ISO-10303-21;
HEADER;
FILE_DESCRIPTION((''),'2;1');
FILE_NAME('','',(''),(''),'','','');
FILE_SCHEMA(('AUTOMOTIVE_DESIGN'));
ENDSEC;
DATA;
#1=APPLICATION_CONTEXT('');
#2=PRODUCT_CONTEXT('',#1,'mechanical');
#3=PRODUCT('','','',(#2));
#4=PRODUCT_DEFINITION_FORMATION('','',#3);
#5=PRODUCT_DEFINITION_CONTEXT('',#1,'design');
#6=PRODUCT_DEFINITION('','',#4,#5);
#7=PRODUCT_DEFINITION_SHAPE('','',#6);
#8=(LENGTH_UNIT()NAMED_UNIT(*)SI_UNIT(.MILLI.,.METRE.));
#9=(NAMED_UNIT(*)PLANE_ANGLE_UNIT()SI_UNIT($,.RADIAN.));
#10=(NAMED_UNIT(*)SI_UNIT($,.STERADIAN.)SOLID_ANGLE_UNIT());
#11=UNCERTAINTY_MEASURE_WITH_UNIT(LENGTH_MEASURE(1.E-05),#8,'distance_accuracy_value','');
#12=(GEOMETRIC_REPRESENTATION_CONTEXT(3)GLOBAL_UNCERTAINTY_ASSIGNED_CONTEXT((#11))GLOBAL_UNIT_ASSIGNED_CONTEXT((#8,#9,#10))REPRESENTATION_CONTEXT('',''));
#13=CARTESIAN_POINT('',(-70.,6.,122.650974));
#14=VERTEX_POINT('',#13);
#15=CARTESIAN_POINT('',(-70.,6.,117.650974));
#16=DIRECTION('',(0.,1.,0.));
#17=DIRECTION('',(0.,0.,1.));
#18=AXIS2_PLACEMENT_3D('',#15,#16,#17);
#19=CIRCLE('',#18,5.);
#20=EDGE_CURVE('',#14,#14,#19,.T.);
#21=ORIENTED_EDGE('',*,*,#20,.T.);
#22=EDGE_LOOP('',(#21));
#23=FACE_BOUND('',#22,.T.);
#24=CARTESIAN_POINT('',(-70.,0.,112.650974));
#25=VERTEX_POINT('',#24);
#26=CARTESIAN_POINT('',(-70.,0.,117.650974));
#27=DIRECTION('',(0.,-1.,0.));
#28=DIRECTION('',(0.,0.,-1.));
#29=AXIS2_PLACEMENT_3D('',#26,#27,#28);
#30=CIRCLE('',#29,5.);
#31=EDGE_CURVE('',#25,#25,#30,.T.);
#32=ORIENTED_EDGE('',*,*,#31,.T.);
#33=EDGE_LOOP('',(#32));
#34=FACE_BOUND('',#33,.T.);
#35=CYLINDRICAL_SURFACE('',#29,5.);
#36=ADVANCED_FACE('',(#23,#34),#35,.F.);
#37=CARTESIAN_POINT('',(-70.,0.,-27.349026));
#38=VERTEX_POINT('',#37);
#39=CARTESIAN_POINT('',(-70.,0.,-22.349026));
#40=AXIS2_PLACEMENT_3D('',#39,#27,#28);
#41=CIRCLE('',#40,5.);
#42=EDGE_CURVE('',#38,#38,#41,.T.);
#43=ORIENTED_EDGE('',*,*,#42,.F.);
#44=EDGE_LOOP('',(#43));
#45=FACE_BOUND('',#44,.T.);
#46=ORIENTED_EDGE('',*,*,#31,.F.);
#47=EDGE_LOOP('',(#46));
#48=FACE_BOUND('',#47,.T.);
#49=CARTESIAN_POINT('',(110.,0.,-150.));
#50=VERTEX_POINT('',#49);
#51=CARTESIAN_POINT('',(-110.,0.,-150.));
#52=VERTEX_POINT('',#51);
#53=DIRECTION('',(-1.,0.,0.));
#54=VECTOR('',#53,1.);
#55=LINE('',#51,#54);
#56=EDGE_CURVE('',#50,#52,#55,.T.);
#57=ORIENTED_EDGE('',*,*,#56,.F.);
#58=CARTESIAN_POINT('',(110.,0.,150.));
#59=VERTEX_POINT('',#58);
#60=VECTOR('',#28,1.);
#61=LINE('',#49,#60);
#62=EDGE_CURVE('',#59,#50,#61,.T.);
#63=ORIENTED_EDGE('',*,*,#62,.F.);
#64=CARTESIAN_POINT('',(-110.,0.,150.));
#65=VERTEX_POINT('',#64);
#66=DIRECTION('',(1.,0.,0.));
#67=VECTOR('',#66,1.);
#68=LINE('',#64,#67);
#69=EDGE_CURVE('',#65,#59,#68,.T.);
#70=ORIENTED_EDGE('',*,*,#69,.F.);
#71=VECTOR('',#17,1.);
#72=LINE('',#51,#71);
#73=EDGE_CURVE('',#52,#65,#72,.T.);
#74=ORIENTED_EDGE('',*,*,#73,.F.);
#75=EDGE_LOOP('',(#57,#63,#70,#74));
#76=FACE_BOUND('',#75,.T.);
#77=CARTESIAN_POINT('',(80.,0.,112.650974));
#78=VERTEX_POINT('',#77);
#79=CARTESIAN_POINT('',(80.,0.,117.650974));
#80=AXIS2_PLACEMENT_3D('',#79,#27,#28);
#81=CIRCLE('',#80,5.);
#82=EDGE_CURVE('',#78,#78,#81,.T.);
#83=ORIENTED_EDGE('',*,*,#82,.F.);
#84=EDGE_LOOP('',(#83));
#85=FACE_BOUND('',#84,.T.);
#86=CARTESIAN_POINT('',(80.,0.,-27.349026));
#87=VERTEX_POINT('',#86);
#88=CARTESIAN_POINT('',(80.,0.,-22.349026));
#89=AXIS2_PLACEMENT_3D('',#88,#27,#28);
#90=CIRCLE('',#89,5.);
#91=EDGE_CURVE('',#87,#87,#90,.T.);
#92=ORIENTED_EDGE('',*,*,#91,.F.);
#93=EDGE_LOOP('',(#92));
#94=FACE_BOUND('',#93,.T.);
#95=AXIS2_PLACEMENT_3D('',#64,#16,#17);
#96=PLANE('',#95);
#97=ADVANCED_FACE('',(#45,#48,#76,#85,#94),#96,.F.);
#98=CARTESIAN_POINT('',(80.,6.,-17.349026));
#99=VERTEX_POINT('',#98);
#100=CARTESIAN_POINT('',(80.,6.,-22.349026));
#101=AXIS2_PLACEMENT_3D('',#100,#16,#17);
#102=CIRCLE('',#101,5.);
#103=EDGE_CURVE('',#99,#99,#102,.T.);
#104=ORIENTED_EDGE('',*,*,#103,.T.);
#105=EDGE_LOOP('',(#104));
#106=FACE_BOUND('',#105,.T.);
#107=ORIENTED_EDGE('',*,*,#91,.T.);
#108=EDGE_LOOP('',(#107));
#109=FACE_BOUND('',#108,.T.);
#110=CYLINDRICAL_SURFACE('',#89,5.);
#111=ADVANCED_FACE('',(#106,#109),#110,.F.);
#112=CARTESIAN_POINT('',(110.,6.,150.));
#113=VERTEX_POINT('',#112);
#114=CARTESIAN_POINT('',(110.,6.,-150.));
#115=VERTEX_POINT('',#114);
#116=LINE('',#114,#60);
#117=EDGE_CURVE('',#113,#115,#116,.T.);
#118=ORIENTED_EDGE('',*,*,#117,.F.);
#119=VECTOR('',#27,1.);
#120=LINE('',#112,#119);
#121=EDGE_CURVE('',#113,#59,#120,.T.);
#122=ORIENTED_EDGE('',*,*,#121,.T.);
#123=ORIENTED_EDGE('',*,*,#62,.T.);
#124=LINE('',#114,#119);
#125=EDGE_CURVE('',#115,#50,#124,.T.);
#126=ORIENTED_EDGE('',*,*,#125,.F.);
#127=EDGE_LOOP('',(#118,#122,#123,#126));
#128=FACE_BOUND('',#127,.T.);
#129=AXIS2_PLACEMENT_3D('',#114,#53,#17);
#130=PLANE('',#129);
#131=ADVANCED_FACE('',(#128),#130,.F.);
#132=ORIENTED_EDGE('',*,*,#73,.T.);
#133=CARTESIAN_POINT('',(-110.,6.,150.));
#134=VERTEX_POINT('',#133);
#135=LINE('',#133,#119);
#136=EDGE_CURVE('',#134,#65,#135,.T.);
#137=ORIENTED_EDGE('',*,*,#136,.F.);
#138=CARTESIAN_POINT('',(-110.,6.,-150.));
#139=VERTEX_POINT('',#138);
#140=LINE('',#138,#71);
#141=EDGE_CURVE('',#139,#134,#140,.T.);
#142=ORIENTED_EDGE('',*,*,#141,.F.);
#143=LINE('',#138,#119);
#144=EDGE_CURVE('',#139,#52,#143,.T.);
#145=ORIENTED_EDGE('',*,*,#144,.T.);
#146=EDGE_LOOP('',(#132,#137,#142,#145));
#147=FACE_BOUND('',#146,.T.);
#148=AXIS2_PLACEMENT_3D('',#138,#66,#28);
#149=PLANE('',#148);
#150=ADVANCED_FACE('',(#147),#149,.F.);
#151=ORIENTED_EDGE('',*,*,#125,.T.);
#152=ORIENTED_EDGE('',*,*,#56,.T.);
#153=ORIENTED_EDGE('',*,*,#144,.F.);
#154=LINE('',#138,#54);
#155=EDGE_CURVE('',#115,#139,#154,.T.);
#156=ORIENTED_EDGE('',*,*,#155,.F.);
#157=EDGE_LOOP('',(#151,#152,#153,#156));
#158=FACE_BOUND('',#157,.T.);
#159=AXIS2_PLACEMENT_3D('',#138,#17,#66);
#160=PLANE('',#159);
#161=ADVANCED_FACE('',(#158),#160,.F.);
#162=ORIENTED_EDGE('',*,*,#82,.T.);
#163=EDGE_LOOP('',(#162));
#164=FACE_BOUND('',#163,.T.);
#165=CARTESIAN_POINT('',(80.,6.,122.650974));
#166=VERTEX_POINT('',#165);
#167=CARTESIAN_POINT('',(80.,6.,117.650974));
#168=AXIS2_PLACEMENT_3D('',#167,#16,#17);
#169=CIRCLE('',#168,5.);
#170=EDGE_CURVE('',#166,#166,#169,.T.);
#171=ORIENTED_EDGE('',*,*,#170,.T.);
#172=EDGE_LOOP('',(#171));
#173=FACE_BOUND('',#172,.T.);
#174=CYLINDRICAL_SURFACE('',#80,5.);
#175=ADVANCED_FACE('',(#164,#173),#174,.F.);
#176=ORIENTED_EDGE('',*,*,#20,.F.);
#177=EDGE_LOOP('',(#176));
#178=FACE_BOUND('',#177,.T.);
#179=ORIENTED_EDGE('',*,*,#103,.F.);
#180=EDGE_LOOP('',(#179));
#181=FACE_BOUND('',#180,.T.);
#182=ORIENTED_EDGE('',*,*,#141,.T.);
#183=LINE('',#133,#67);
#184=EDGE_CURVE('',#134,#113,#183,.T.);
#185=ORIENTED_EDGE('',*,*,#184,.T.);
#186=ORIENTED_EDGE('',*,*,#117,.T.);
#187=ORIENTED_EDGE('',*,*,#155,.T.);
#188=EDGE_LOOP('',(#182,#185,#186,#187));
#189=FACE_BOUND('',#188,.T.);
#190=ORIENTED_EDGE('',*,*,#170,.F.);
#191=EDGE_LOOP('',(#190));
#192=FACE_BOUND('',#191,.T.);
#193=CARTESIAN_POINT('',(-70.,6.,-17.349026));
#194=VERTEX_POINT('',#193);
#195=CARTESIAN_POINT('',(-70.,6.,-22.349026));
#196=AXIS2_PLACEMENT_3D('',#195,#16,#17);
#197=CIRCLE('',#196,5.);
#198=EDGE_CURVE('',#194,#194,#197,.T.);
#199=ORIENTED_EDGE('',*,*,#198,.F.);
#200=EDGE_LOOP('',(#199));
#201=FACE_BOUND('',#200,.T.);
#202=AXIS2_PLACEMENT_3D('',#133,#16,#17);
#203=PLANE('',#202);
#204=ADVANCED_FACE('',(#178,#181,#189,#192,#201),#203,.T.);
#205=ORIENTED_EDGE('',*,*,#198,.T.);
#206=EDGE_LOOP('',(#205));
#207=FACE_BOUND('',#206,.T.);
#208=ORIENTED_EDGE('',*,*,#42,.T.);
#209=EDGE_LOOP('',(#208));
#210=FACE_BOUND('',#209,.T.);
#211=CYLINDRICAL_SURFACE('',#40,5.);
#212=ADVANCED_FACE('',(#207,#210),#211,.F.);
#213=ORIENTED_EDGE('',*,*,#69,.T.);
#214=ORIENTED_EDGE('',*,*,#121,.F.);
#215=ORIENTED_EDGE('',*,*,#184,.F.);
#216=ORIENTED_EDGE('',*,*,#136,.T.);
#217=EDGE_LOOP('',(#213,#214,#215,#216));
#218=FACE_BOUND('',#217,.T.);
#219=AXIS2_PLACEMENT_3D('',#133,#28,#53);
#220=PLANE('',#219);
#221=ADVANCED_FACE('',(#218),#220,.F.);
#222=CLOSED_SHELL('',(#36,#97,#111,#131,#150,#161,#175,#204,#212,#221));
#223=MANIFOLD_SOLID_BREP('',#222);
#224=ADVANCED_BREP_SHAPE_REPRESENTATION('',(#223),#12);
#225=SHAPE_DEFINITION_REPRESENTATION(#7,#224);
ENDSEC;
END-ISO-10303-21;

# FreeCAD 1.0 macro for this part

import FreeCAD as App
import Part
import Sketcher
from FreeCAD import Vector

doc = App.newDocument("Part")
params = doc.addObject("Spreadsheet::Sheet", "Params")
for row, (alias, value) in enumerate([
    ("sketch1_width", "220 mm"),
    ("sketch1_height", "300 mm"),
    ("pad1_length", "6 mm"),
    ("sketch2_diameter", "10 mm"),
    ("hole_diameter", "10 mm"),
    ("hole_depth", "11 mm"),
], start=1):
    params.set(f"A{row}", alias)
    params.set(f"B{row}", "=" + value)
    params.setAlias(f"B{row}", alias)

body = doc.addObject("PartDesign::Body", "Body")

# Sketch on XZ plane
sketch1 = body.newObject("Sketcher::SketchObject", "Sketch")
sketch1.AttachmentSupport = (doc.getObject("XZ_Plane"), [""])
sketch1.MapMode = "FlatFace"
sketch1.addGeometry([
    Part.LineSegment(Vector(-110, -150, 0), Vector(-110, 150, 0)),
    Part.LineSegment(Vector(-110, 150, 0), Vector(110, 150, 0)),
    Part.LineSegment(Vector(110, 150, 0), Vector(110, -150, 0)),
    Part.LineSegment(Vector(110, -150, 0), Vector(-110, -150, 0)),
], False)
sketch1.addConstraint([
    Sketcher.Constraint("Coincident", 0, 2, 1, 1),
    Sketcher.Constraint("Coincident", 1, 2, 2, 1),
    Sketcher.Constraint("Coincident", 2, 2, 3, 1),
    Sketcher.Constraint("Coincident", 3, 2, 0, 1),
    Sketcher.Constraint("Vertical", 0),
    Sketcher.Constraint("Horizontal", 1),
    Sketcher.Constraint("Vertical", 2),
    Sketcher.Constraint("Horizontal", 3),
    Sketcher.Constraint("Symmetric", 0, 2, 2, 2, -1, 1),
    Sketcher.Constraint("DistanceX", 1, 1, 1, 2, 220.0),
    Sketcher.Constraint("DistanceY", 0, 1, 0, 2, 300.0),
])
sketch1.setExpression("Constraints[9]", "Params.sketch1_width")
sketch1.setExpression("Constraints[10]", "Params.sketch1_height")
pad1 = body.newObject("PartDesign::Pad", "Pad")
pad1.Profile = sketch1
pad1.setExpression("Length", "Params.pad1_length")
pad1.Reversed = True

# Sketch on XZ plane
sketch2 = body.newObject("Sketcher::SketchObject", "Sketch001")
sketch2.AttachmentSupport = (doc.getObject("XZ_Plane"), [""])
sketch2.MapMode = "FlatFace"
sketch2.addGeometry([
    Part.Circle(Vector(-70, 118, 0), Vector(0, 0, 1), 5),
    Part.Circle(Vector(80, 118, 0), Vector(0, 0, 1), 5),
    Part.Circle(Vector(80, -22, 0), Vector(0, 0, 1), 5),
    Part.Circle(Vector(-70, -22, 0), Vector(0, 0, 1), 5),
], False)
sketch2.addConstraint([
    Sketcher.Constraint("Equal", 0, 1),
    Sketcher.Constraint("Equal", 1, 2),
    Sketcher.Constraint("Equal", 2, 3),
    Sketcher.Constraint("Horizontal", 0, 3, 1, 3),
    Sketcher.Constraint("Horizontal", 2, 3, 3, 3),
    Sketcher.Constraint("Vertical", 1, 3, 2, 3),
    Sketcher.Constraint("Vertical", 0, 3, 3, 3),
    Sketcher.Constraint("Diameter", 0, 10.0),
    Sketcher.Constraint("DistanceX", 0, 3, -1, 1, 70.0),
    Sketcher.Constraint("DistanceX", -1, 1, 1, 3, 80.0),
    Sketcher.Constraint("DistanceY", 2, 3, 1, 3, 140.0),
    Sketcher.Constraint("DistanceY", -1, 1, 0, 3, 117.650974),
])
sketch2.setExpression("Constraints[7]", "Params.sketch2_diameter")
doc.recompute()
hole = body.newObject("PartDesign::Hole", "Hole")
hole.Profile = sketch2
hole.ThreadType = "None"
hole.setExpression("Diameter", "Params.hole_diameter")
hole.DepthType = "Dimension"
hole.setExpression("Depth", "Params.hole_depth")
hole.DrillPoint = "Angled"
hole.DrillPointAngle = 118

doc.recompute()
